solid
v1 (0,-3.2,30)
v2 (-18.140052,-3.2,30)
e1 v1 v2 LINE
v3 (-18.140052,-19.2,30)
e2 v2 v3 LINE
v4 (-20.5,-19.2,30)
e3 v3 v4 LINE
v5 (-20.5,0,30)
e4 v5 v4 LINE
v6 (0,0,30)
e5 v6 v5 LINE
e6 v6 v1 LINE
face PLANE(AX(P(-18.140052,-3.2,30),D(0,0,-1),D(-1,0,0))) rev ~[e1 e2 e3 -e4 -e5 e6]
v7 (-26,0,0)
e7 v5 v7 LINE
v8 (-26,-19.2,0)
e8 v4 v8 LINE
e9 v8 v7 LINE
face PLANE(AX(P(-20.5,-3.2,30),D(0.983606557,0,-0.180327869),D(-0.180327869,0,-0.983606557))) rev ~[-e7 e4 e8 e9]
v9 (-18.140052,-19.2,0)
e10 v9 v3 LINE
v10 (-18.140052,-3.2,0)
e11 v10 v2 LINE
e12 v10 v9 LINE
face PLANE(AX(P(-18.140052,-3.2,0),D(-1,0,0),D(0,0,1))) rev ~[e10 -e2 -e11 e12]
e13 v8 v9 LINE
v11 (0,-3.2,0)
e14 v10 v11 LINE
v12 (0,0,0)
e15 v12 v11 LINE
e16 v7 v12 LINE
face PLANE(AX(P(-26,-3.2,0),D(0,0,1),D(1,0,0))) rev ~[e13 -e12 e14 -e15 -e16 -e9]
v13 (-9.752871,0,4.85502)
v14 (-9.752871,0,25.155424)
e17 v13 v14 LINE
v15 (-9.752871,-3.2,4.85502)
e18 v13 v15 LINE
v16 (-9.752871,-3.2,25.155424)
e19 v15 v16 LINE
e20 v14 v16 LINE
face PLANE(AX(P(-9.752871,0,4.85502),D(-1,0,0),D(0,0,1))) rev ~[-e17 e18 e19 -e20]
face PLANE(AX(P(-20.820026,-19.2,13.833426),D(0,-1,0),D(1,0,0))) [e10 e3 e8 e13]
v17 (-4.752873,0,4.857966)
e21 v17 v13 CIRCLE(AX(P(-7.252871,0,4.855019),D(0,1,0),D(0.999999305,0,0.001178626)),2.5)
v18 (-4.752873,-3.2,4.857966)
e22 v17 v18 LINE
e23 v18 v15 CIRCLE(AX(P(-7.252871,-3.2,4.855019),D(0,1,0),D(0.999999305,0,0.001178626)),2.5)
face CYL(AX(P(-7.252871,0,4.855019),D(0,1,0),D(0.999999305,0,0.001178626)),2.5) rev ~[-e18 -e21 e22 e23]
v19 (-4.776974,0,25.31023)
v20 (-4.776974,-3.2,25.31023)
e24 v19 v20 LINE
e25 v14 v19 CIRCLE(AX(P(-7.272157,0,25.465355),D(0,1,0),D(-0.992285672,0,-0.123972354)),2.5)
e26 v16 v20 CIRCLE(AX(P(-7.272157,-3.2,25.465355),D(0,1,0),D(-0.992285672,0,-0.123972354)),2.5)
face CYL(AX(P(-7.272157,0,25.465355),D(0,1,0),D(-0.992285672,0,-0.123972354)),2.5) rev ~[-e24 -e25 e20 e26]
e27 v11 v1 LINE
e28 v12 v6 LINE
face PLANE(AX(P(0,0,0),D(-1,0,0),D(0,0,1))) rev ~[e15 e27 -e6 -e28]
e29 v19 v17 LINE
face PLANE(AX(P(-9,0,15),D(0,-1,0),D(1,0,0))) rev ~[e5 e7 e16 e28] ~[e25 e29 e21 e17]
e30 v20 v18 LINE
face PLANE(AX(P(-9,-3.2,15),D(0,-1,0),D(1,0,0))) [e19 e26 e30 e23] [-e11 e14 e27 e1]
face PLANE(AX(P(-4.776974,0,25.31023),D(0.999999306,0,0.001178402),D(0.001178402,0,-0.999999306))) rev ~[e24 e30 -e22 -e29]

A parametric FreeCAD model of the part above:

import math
import FreeCAD as App
import Part
import Sketcher


def add_polygon(sketch, points):
    """Adds a closed chain of lines whose ends are joined by coincident constraints."""
    first, n = sketch.GeometryCount, len(points)
    for a, b in zip(points, points[1:] + points[:1]):
        sketch.addGeometry(Part.LineSegment(App.Vector(*a, 0), App.Vector(*b, 0)), False)
    for i in range(n):
        sketch.addConstraint(Sketcher.Constraint("Coincident", first + i, 2, first + (i + 1) % n, 1))

doc = App.newDocument("Part")
body = doc.addObject("PartDesign::Body", "Body")

sketch1 = body.newObject("Sketcher::SketchObject", "Sketch")
sketch1.AttachmentSupport = (doc.getObject("XZ_Plane"), [""])
sketch1.MapMode = "FlatFace"
add_polygon(sketch1, [(0, 0), (0, 30), (-20.5, 30), (-26, 0)])
sketch1.addGeometry(Part.LineSegment(App.Vector(-9.8, 4.9, 0), App.Vector(-9.8, 25.2, 0)), False)
sketch1.addGeometry(Part.ArcOfCircle(Part.Circle(App.Vector(-7.3, 25.5, 0), App.Vector(0, 0, 1), 2.5), math.radians(-4), math.radians(187)), False)
sketch1.addGeometry(Part.LineSegment(App.Vector(-4.8, 25.3, 0), App.Vector(-4.8, 4.9, 0)), False)
sketch1.addGeometry(Part.ArcOfCircle(Part.Circle(App.Vector(-7.3, 4.9, 0), App.Vector(0, 0, 1), 2.5), math.radians(180), math.radians(360)), False)
sketch1.addConstraint([
    Sketcher.Constraint("Coincident", 4, 2, 5, 2),
    Sketcher.Constraint("Coincident", 5, 1, 6, 1),
    Sketcher.Constraint("Tangent", 6, 2, 7, 2),
    Sketcher.Constraint("Tangent", 7, 1, 4, 1),
    Sketcher.Constraint("Vertical", 0),
    Sketcher.Constraint("Horizontal", 1),
    Sketcher.Constraint("Horizontal", 3),
    Sketcher.Constraint("Vertical", 4),
    Sketcher.Constraint("Coincident", 3, 2, -1, 1),
    Sketcher.Constraint("Equal", 5, 7),
    Sketcher.Constraint("Radius", 5, 2.5),
    Sketcher.Constraint("DistanceX", 3, 1, 3, 2, 26.0),
    Sketcher.Constraint("DistanceY", 0, 1, 0, 2, 30.0),
    Sketcher.Constraint("DistanceX", 1, 2, 1, 1, 20.5),
    Sketcher.Constraint("DistanceX", 5, 1, 6, 2, 0.024101),
    Sketcher.Constraint("Distance", 6, 20.452278),
    Sketcher.Constraint("DistanceY", 4, 1, 4, 2, 20.300404),
    Sketcher.Constraint("DistanceX", 7, 3, -1, 1, 7.252871),
    Sketcher.Constraint("DistanceY", -1, 1, 7, 3, 4.855019),
])
pad1 = body.newObject("PartDesign::Pad", "Pad")
pad1.Profile = sketch1
pad1.Length = 3.2

sketch2 = body.newObject("Sketcher::SketchObject", "Sketch001")
sketch2.AttachmentSupport = (doc.getObject("XZ_Plane"), [""])
sketch2.MapMode = "FlatFace"
sketch2.AttachmentOffset = App.Placement(App.Vector(0, 0, 3.2), App.Rotation())
add_polygon(sketch2, [(-18.1, 0), (-18.1, 30), (-20.5, 30), (-26, 0)])
sketch2.addConstraint([
    Sketcher.Constraint("Vertical", 0),
    Sketcher.Constraint("Horizontal", 1),
    Sketcher.Constraint("Horizontal", 3),
    Sketcher.Constraint("PointOnObject", 2, 2, -1),
    Sketcher.Constraint("DistanceY", 0, 1, 0, 2, 30.0),
    Sketcher.Constraint("DistanceX", 2, 2, -1, 1, 26.0),
    Sketcher.Constraint("Distance", 2, 30.5),
    Sketcher.Constraint("DistanceX", 1, 2, 1, 1, 2.359948),
])
pad2 = body.newObject("PartDesign::Pad", "Pad001")
pad2.Profile = sketch2
pad2.Length = 16

doc.recompute()
